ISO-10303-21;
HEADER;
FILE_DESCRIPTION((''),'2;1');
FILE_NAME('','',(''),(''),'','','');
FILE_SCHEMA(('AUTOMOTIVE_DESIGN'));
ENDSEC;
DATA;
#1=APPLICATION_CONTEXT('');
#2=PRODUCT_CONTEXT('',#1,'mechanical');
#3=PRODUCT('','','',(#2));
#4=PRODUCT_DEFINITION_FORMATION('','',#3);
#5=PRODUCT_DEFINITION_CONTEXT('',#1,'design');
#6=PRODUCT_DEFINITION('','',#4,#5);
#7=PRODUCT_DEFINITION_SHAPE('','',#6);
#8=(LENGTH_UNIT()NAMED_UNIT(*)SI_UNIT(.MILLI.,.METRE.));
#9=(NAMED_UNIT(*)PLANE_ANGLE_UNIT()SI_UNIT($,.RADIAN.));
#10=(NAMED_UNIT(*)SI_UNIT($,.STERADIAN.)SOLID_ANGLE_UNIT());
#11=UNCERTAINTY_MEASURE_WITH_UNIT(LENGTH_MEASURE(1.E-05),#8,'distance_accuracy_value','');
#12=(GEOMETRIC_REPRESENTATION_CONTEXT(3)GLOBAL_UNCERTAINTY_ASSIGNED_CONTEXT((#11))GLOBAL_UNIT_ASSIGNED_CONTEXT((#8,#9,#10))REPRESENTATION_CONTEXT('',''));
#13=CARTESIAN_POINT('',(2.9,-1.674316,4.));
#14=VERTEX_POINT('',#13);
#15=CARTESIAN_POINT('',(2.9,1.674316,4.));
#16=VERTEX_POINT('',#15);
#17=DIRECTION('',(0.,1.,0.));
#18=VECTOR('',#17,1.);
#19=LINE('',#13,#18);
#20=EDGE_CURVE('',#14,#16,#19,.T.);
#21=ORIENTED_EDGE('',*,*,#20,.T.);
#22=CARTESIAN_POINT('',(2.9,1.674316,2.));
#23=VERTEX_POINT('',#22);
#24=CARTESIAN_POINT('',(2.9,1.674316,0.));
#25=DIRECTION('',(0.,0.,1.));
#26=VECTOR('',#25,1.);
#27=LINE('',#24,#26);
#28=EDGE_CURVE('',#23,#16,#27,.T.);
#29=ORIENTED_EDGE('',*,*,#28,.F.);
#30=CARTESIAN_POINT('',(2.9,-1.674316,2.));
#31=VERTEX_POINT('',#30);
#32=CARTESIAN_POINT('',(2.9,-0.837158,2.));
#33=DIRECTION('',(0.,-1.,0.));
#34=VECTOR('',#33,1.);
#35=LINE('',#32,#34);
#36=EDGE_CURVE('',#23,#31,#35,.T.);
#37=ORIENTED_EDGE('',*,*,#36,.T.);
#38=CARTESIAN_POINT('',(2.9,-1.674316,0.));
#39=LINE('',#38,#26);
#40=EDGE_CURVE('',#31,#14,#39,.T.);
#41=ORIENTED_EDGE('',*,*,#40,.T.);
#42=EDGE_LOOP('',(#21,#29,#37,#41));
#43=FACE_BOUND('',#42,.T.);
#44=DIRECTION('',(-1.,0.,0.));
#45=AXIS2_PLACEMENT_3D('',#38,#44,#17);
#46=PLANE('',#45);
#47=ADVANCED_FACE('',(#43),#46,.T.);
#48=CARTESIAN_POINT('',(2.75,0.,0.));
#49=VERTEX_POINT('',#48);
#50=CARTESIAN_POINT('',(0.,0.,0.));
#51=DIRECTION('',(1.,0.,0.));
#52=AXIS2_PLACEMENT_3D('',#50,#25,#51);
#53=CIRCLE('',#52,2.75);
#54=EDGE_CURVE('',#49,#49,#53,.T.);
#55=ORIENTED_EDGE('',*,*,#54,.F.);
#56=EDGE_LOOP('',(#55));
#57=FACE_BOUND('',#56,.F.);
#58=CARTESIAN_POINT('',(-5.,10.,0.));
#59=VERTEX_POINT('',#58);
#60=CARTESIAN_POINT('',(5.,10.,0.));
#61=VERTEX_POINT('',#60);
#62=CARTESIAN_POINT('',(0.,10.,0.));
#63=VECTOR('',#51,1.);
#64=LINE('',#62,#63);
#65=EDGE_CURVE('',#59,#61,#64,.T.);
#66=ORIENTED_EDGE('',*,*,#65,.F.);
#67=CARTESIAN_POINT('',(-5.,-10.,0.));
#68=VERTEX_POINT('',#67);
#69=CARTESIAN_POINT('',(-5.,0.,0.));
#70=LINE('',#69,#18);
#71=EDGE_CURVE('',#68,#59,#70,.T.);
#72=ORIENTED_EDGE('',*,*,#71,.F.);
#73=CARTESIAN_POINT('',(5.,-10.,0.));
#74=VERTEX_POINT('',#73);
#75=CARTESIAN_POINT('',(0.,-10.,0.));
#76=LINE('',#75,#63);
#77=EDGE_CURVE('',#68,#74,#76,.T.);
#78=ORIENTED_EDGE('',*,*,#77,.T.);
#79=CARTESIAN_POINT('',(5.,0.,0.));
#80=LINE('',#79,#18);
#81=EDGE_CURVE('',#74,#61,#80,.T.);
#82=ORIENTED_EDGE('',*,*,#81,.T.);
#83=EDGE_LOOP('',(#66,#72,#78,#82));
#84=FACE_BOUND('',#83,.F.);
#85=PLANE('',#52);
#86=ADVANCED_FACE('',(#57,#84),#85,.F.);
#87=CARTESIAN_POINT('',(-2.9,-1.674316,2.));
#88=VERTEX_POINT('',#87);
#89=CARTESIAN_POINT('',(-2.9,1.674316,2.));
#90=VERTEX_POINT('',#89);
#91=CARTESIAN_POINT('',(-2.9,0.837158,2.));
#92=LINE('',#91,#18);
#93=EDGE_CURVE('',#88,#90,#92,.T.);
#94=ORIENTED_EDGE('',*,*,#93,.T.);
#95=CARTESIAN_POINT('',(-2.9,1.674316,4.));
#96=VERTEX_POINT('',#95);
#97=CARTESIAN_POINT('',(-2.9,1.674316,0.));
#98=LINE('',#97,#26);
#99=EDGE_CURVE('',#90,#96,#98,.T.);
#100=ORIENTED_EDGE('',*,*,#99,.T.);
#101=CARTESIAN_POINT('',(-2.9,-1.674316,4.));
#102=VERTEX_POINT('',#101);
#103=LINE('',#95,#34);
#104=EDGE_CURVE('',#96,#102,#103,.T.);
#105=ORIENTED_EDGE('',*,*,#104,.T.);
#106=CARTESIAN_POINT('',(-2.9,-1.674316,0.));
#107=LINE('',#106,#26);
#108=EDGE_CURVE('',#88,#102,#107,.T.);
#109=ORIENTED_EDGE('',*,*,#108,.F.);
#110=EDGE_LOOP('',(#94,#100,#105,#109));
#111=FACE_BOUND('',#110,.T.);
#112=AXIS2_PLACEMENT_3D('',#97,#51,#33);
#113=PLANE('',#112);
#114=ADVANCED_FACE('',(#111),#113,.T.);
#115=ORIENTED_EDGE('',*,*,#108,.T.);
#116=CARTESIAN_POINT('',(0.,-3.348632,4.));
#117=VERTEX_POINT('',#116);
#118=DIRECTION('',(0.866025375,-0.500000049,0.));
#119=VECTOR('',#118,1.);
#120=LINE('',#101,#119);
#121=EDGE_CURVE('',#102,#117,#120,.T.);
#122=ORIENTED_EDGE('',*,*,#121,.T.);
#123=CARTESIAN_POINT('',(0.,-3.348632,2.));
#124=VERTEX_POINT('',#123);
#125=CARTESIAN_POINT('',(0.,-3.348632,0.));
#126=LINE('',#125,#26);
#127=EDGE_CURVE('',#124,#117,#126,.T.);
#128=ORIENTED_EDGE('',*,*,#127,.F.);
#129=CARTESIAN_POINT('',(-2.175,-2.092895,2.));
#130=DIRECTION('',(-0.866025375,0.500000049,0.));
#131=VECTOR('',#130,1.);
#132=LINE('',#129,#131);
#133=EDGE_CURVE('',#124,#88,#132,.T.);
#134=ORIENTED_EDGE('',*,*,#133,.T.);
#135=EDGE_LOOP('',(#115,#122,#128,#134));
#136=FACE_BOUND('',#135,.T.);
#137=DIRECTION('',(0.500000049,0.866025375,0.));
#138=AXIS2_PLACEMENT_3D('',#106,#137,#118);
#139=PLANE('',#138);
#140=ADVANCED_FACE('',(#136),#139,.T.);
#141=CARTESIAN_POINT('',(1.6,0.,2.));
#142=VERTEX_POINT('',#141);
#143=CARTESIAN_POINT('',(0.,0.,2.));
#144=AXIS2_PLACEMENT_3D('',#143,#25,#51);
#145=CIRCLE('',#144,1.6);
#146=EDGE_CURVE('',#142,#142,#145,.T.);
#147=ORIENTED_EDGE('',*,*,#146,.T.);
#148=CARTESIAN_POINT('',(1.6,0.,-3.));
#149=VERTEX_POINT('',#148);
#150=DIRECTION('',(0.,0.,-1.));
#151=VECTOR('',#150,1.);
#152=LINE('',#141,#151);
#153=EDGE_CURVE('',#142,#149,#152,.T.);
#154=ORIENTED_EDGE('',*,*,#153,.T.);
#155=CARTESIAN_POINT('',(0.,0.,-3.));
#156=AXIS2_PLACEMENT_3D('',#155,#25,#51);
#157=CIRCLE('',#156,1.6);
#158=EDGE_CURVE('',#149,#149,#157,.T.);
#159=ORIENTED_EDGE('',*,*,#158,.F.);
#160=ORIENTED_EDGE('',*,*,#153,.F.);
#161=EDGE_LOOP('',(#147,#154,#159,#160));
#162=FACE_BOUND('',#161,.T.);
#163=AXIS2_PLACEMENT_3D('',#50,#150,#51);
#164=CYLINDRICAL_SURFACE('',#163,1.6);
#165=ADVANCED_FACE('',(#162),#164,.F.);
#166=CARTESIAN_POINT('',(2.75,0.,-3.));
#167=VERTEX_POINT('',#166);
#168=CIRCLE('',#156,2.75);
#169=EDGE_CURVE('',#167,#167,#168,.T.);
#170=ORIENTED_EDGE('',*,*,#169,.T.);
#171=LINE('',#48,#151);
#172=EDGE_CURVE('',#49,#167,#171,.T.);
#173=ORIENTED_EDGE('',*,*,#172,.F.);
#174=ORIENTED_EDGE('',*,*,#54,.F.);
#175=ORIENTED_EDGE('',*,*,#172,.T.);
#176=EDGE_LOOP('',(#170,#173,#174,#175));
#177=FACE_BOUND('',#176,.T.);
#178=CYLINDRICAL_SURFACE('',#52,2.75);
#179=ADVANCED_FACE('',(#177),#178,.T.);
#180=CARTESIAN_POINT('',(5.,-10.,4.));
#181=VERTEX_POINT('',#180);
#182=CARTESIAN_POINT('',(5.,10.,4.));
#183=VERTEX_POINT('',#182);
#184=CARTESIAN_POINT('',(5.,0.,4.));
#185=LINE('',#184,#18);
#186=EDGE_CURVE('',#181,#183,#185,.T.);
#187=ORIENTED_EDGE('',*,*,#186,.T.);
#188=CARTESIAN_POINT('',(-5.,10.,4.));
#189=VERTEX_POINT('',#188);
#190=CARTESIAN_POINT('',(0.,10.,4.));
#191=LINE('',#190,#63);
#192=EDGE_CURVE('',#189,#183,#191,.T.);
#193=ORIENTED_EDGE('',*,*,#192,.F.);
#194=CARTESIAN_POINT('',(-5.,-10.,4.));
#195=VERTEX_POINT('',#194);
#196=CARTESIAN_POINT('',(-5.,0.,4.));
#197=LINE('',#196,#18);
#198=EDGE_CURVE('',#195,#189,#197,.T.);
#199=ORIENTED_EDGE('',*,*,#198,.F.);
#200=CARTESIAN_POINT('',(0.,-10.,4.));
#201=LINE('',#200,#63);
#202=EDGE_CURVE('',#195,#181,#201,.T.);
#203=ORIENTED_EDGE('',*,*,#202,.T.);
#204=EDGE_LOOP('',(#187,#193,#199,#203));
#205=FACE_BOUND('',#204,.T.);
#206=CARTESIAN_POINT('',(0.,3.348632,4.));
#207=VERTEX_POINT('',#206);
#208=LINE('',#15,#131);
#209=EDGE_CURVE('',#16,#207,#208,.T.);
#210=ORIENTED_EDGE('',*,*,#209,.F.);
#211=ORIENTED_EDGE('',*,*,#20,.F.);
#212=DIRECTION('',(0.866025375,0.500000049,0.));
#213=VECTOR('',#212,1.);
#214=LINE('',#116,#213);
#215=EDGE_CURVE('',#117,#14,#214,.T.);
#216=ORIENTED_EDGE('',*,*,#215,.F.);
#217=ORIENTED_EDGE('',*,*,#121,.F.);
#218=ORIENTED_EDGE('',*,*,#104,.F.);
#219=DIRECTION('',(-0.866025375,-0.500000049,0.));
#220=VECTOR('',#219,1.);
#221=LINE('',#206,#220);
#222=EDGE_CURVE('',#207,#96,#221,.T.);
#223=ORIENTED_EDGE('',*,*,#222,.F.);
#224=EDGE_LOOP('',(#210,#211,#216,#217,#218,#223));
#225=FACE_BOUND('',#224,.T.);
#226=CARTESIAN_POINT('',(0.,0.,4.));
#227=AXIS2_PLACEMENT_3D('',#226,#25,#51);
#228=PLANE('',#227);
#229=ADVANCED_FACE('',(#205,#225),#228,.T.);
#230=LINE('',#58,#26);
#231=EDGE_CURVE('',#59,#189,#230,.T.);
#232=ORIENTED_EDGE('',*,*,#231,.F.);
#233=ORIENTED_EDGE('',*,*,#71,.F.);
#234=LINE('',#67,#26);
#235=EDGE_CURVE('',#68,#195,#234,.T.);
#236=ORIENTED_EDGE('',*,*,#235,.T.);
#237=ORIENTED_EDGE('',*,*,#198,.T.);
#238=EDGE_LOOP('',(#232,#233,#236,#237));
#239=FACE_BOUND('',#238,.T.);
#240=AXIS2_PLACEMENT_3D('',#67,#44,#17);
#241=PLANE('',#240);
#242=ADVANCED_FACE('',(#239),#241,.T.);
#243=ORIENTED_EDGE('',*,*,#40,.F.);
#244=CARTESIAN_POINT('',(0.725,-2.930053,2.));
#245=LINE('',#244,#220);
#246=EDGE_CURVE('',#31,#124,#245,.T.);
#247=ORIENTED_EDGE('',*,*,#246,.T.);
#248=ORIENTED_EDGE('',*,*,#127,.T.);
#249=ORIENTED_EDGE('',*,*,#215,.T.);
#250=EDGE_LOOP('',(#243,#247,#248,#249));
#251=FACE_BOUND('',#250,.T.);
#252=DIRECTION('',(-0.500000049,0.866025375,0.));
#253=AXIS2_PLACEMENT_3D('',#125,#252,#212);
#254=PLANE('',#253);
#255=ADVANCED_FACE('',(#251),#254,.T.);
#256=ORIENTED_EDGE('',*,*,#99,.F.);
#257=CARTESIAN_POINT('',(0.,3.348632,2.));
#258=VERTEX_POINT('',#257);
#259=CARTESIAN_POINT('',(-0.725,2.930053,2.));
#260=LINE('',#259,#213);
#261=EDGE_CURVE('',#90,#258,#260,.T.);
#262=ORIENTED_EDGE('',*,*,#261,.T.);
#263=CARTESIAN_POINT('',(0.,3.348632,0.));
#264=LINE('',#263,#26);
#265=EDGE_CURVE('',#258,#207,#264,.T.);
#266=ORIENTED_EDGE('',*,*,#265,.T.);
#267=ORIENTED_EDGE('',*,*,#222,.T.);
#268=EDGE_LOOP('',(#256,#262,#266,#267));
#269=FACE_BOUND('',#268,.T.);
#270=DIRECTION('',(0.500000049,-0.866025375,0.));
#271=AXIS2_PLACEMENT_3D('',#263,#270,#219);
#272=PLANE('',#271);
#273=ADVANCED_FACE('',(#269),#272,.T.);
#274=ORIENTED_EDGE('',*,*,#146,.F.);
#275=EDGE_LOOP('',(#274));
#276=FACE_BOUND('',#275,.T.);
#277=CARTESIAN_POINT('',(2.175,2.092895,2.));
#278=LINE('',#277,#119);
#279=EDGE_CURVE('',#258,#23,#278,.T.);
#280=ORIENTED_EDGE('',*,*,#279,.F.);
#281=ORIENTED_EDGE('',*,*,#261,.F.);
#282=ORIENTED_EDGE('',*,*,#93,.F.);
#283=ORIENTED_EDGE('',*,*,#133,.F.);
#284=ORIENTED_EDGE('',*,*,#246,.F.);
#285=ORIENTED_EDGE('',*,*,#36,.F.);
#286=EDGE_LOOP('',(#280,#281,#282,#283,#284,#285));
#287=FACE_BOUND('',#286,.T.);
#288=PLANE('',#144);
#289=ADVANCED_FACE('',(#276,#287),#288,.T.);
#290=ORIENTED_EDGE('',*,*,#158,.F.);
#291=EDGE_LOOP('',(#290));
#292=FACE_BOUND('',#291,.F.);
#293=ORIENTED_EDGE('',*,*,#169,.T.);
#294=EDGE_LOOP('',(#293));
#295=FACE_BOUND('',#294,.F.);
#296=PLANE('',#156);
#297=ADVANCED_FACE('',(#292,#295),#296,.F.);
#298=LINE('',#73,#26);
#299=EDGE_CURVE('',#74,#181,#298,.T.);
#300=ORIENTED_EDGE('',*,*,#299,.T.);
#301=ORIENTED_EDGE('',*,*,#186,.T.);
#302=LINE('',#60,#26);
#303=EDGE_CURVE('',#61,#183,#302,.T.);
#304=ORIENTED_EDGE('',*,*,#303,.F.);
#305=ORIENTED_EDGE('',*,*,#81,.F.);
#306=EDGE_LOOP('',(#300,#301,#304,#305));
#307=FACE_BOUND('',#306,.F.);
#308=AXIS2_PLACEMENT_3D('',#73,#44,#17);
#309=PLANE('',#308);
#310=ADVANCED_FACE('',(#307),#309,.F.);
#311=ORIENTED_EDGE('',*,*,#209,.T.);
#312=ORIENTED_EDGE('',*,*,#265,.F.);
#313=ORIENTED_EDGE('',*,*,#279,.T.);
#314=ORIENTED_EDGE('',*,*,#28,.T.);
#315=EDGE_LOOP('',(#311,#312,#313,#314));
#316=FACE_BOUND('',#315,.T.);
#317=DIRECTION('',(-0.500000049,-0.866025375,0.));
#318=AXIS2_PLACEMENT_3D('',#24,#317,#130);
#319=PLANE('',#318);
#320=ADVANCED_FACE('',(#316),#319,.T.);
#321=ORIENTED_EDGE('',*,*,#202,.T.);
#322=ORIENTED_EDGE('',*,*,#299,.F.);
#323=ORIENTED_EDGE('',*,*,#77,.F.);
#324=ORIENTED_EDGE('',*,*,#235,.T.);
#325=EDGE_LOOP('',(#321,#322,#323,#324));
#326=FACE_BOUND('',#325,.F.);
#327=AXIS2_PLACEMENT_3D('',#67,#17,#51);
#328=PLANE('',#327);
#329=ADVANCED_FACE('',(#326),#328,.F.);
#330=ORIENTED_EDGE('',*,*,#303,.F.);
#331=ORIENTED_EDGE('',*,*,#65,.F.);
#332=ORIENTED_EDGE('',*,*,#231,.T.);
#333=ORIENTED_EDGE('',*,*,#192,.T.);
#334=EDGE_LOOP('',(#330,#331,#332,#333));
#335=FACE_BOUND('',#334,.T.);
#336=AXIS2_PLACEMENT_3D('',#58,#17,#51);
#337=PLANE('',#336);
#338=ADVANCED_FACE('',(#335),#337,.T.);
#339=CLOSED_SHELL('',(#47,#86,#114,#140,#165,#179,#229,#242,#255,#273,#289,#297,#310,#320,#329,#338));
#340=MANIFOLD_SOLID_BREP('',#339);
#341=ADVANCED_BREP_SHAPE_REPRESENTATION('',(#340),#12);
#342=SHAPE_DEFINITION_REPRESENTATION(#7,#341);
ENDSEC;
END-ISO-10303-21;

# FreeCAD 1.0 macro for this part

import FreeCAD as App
import Part
import Sketcher
from FreeCAD import Vector
Q = App.Units.Quantity

doc = App.newDocument("Part")
body = doc.addObject("PartDesign::Body", "Body")

# Sketch on XY plane
sketch1 = body.newObject("Sketcher::SketchObject", "Sketch")
sketch1.AttachmentSupport = (doc.getObject("XY_Plane"), [""])
sketch1.MapMode = "FlatFace"
sketch1.addGeometry(Part.Circle(Vector(0, 0, 0), Vector(0, 0, 1), 2.75), False)
sketch1.addGeometry(Part.Circle(Vector(0, 0, 0), Vector(0, 0, 1), 1.6), False)
sketch1.addConstraint(Sketcher.Constraint("Coincident", 0, 3, -1, 1))
sketch1.addConstraint(Sketcher.Constraint("Coincident", 1, 3, -1, 1))
sketch1.addConstraint(Sketcher.Constraint("Diameter", 0, Q("5.5 mm")))
sketch1.addConstraint(Sketcher.Constraint("Diameter", 1, Q("3.2 mm")))
pad1 = body.newObject("PartDesign::Pad", "Pad")
pad1.Profile = sketch1
pad1.Length = 3
pad1.Reversed = True

# Sketch on XY plane
sketch2 = body.newObject("Sketcher::SketchObject", "Sketch001")
sketch2.AttachmentSupport = (doc.getObject("XY_Plane"), [""])
sketch2.MapMode = "FlatFace"
sketch2.addGeometry(Part.Circle(Vector(0, 0, 0), Vector(0, 0, 1), 3.5), False)
sketch2.addGeometry(Part.Circle(Vector(0, 0, 0), Vector(0, 0, 1), 1.6), False)
sketch2.addConstraint(Sketcher.Constraint("Coincident", 0, 3, -1, 1))
sketch2.addConstraint(Sketcher.Constraint("Coincident", 1, 3, -1, 1))
sketch2.addConstraint(Sketcher.Constraint("Diameter", 0, Q("7 mm")))
sketch2.addConstraint(Sketcher.Constraint("Diameter", 1, Q("3.2 mm")))
pad2 = body.newObject("PartDesign::Pad", "Pad001")
pad2.Profile = sketch2
pad2.Length = 2

# Sketch on XY plane
sketch3 = body.newObject("Sketcher::SketchObject", "Sketch002")
sketch3.AttachmentSupport = (doc.getObject("XY_Plane"), [""])
sketch3.MapMode = "FlatFace"
sketch3.addGeometry(Part.LineSegment(Vector(-5, 10, 0), Vector(-5, -10, 0)), False)
sketch3.addGeometry(Part.LineSegment(Vector(-5, -10, 0), Vector(5, -10, 0)), False)
sketch3.addGeometry(Part.LineSegment(Vector(5, -10, 0), Vector(5, 10, 0)), False)
sketch3.addGeometry(Part.LineSegment(Vector(5, 10, 0), Vector(-5, 10, 0)), False)
sketch3.addGeometry(Part.LineSegment(Vector(2.9, -1.674316, 0), Vector(0, -3.348632, 0)), False)
sketch3.addGeometry(Part.LineSegment(Vector(0, -3.348632, 0), Vector(-2.9, -1.674316, 0)), False)
sketch3.addGeometry(Part.LineSegment(Vector(-2.9, -1.674316, 0), Vector(-2.9, 1.674316, 0)), False)
sketch3.addGeometry(Part.LineSegment(Vector(-2.9, 1.674316, 0), Vector(0, 3.348632, 0)), False)
sketch3.addGeometry(Part.LineSegment(Vector(0, 3.348632, 0), Vector(2.9, 1.674316, 0)), False)
sketch3.addGeometry(Part.LineSegment(Vector(2.9, 1.674316, 0), Vector(2.9, -1.674316, 0)), False)
sketch3.addConstraint(Sketcher.Constraint("Coincident", 0, 2, 1, 1))
sketch3.addConstraint(Sketcher.Constraint("Coincident", 1, 2, 2, 1))
sketch3.addConstraint(Sketcher.Constraint("Coincident", 2, 2, 3, 1))
sketch3.addConstraint(Sketcher.Constraint("Coincident", 3, 2, 0, 1))
sketch3.addConstraint(Sketcher.Constraint("Coincident", 4, 2, 5, 1))
sketch3.addConstraint(Sketcher.Constraint("Coincident", 5, 2, 6, 1))
sketch3.addConstraint(Sketcher.Constraint("Coincident", 6, 2, 7, 1))
sketch3.addConstraint(Sketcher.Constraint("Coincident", 7, 2, 8, 1))
sketch3.addConstraint(Sketcher.Constraint("Coincident", 8, 2, 9, 1))
sketch3.addConstraint(Sketcher.Constraint("Coincident", 9, 2, 4, 1))
sketch3.addConstraint(Sketcher.Constraint("Vertical", 0))
sketch3.addConstraint(Sketcher.Constraint("Horizontal", 1))
sketch3.addConstraint(Sketcher.Constraint("Vertical", 2))
sketch3.addConstraint(Sketcher.Constraint("Horizontal", 3))
sketch3.addConstraint(Sketcher.Constraint("Vertical", 6))
sketch3.addConstraint(Sketcher.Constraint("Vertical", 9))
sketch3.addConstraint(Sketcher.Constraint("Symmetric", 0, 2, 2, 2, -1, 1))
sketch3.addConstraint(Sketcher.Constraint("Symmetric", 4, 2, 7, 2, -1, 1))
sketch3.addConstraint(Sketcher.Constraint("Symmetric", 5, 2, 8, 2, -1, 1))
sketch3.addConstraint(Sketcher.Constraint("PointOnObject", 4, 2, -2))
sketch3.addConstraint(Sketcher.Constraint("Parallel", 4, 7))
sketch3.addConstraint(Sketcher.Constraint("Horizontal", 6, 2, 8, 2))
sketch3.addConstraint(Sketcher.Constraint("DistanceX", 1, 1, 1, 2, Q("10 mm")))
sketch3.addConstraint(Sketcher.Constraint("DistanceY", 0, 2, 0, 1, Q("20 mm")))
sketch3.addConstraint(Sketcher.Constraint("Angle", 4, Q("-149.999997 deg")))
sketch3.addConstraint(Sketcher.Constraint("DistanceX", 5, 2, -1, 1, Q("2.9 mm")))
sketch3.addConstraint(Sketcher.Constraint("DistanceY", 6, 1, 6, 2, Q("3.348632 mm")))
pad3 = body.newObject("PartDesign::Pad", "Pad002")
pad3.Profile = sketch3
pad3.Length = 4

doc.recompute()
